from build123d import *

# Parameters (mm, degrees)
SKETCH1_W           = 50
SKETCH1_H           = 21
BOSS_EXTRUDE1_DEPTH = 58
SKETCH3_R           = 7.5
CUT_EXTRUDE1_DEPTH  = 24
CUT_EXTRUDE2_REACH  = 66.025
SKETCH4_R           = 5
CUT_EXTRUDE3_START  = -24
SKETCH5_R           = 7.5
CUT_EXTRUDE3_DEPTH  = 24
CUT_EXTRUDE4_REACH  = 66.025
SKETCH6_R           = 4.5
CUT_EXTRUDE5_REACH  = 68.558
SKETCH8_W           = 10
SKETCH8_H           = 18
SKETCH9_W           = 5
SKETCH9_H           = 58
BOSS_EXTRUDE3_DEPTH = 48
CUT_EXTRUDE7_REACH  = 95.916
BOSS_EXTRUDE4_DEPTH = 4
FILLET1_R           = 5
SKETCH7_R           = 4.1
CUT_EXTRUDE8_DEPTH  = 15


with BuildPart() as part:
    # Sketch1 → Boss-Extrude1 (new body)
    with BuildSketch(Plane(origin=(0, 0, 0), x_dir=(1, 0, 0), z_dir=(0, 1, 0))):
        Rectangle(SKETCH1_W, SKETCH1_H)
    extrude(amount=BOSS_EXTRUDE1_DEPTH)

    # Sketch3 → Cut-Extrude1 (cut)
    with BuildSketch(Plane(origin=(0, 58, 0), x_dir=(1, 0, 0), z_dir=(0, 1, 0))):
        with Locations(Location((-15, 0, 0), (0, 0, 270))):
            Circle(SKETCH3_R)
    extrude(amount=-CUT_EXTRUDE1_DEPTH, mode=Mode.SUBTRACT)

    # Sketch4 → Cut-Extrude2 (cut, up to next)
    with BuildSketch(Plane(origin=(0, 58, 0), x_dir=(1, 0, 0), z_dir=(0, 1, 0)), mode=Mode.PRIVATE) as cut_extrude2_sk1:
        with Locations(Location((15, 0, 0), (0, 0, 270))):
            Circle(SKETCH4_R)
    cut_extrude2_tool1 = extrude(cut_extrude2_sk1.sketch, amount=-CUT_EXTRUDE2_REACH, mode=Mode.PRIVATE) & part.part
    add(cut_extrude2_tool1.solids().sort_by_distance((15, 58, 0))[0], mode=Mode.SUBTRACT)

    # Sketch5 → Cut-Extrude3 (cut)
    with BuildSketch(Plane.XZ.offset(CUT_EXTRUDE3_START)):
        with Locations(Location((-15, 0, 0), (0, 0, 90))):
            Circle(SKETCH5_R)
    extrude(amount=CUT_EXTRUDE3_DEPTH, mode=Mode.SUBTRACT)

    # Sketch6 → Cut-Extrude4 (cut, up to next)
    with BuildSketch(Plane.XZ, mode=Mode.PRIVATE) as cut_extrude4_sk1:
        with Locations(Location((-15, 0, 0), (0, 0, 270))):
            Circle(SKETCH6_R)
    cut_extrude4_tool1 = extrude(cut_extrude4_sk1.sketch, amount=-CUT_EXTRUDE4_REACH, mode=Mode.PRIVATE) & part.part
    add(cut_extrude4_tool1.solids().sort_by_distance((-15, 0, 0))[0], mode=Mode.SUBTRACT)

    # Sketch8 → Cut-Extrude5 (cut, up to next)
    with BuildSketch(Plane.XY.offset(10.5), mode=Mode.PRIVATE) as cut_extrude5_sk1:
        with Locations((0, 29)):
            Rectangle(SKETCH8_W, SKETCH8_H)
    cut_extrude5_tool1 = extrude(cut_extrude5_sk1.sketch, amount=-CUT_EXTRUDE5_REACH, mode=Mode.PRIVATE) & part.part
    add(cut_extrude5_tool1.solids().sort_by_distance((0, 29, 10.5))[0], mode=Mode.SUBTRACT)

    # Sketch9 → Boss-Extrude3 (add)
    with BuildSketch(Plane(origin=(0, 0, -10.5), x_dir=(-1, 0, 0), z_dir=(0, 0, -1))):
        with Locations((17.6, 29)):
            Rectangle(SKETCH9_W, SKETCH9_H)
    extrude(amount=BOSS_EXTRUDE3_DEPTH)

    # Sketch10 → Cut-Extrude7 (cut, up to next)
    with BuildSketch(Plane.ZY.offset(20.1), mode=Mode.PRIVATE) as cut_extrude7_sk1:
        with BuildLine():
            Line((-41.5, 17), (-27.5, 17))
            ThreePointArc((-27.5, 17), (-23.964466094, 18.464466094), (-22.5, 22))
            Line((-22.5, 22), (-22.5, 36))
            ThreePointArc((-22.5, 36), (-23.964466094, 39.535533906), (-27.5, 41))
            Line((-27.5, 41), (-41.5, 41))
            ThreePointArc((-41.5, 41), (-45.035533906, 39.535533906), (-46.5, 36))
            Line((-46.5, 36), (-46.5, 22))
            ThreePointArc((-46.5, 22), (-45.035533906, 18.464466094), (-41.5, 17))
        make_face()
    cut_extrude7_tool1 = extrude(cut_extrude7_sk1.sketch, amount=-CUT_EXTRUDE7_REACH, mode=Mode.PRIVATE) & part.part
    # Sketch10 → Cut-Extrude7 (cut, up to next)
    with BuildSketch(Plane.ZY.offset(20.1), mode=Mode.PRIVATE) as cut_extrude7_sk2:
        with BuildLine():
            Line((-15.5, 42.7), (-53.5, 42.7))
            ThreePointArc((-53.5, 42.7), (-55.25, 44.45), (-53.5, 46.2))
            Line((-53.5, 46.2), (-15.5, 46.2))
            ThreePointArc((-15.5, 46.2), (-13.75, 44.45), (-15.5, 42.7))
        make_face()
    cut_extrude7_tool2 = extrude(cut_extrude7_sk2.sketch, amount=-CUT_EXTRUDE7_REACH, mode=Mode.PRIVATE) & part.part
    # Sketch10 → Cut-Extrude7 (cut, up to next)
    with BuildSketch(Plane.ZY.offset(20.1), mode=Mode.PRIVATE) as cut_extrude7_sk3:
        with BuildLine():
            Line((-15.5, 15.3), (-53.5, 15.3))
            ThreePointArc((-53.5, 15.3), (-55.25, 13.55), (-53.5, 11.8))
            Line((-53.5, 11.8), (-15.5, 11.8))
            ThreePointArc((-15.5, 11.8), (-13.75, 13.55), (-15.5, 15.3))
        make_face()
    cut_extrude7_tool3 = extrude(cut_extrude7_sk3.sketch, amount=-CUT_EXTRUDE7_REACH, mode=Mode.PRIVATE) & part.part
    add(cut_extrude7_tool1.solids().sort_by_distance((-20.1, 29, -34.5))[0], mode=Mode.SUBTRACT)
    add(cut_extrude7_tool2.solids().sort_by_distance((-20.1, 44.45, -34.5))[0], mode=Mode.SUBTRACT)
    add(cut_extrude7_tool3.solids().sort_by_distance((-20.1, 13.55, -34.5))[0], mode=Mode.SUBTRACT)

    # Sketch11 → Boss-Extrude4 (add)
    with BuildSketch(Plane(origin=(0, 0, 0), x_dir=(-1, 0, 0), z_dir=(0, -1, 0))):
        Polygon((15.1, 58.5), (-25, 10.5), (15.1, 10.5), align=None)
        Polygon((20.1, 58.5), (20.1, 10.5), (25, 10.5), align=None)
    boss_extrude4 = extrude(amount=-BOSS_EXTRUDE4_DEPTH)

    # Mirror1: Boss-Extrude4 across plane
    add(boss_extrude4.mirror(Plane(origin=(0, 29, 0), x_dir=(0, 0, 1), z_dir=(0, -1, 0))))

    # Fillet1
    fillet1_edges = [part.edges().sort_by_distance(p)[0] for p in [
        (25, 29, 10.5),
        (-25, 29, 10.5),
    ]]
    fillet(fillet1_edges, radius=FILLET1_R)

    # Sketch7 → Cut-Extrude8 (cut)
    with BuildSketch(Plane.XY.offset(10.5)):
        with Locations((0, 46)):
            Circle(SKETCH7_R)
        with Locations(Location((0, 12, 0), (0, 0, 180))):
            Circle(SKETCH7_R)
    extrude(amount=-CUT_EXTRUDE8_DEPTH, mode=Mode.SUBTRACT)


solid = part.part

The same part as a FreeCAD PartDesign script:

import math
import FreeCAD as App
import Part
import Sketcher
from FreeCAD import Vector
Q = App.Units.Quantity


def edges_at(feature, points):
    """Names of the edges that pass closest to the given points."""
    edges = feature.Shape.Edges
    near = lambda p: min(range(len(edges)), key=lambda i: edges[i].distToShape(Part.Vertex(*p))[0])
    return sorted({f"Edge{near(p) + 1}" for p in points})


def add_polygon(sketch, points):
    """Adds a closed chain of lines whose ends are joined by coincident constraints."""
    first, n = sketch.GeometryCount, len(points)
    for a, b in zip(points, points[1:] + points[:1]):
        sketch.addGeometry(Part.LineSegment(App.Vector(*a, 0), App.Vector(*b, 0)), False)
    for i in range(n):
        sketch.addConstraint(Sketcher.Constraint("Coincident", first + i, 2, first + (i + 1) % n, 1))

doc = App.newDocument("Part")
body = doc.addObject("PartDesign::Body", "Body")

# Sketch on XZ plane
sketch1 = doc.addObject("Sketcher::SketchObject", "Sketch")
body.addObject(sketch1)
sketch1.AttachmentSupport = (doc.XZ_Plane, [""])
sketch1.MapMode = "FlatFace"
add_polygon(sketch1, [(-25, -10), (-25, 10), (25, 10), (25, -10)])  # lines 0-3
sketch1.addConstraint(Sketcher.Constraint("Vertical", 0))
sketch1.addConstraint(Sketcher.Constraint("Horizontal", 1))
sketch1.addConstraint(Sketcher.Constraint("Vertical", 2))
sketch1.addConstraint(Sketcher.Constraint("Horizontal", 3))
sketch1.addConstraint(Sketcher.Constraint("Symmetric", 0, 2, 2, 2, -1, 1))
sketch1.addConstraint(Sketcher.Constraint("DistanceX", 1, 1, 1, 2, Q("50 mm")))
sketch1.addConstraint(Sketcher.Constraint("DistanceY", 0, 1, 0, 2, Q("21 mm")))
pad1 = doc.addObject("PartDesign::Pad", "Pad")
body.addObject(pad1)
pad1.Profile = sketch1
pad1.Length = 58
pad1.Reversed = True

# Sketch on XZ plane
sketch2 = doc.addObject("Sketcher::SketchObject", "Sketch001")
body.addObject(sketch2)
sketch2.AttachmentSupport = (doc.XZ_Plane, [""])
sketch2.MapMode = "FlatFace"
sketch2.AttachmentOffset = App.Placement(Vector(0, 0, -58), App.Rotation())
sketch2.addGeometry(Part.Circle(Vector(-15, 0, 0), Vector(0, 0, 1), 8), False)
sketch2.addConstraint(Sketcher.Constraint("PointOnObject", 0, 3, -1))
sketch2.addConstraint(Sketcher.Constraint("Diameter", 0, Q("15 mm")))
sketch2.addConstraint(Sketcher.Constraint("DistanceX", 0, 3, -1, 1, Q("15 mm")))
pocket1 = doc.addObject("PartDesign::Pocket", "Pocket")
body.addObject(pocket1)
pocket1.Profile = sketch2
pocket1.Length = 24
pocket1.Reversed = True

# Sketch on XZ plane
sketch3 = doc.addObject("Sketcher::SketchObject", "Sketch002")
body.addObject(sketch3)
sketch3.AttachmentSupport = (doc.XZ_Plane, [""])
sketch3.MapMode = "FlatFace"
sketch3.AttachmentOffset = App.Placement(Vector(0, 0, -58), App.Rotation())
sketch3.addGeometry(Part.Circle(Vector(15, 0, 0), Vector(0, 0, 1), 5), False)
sketch3.addConstraint(Sketcher.Constraint("PointOnObject", 0, 3, -1))
sketch3.addConstraint(Sketcher.Constraint("Diameter", 0, Q("10 mm")))
sketch3.addConstraint(Sketcher.Constraint("DistanceX", -1, 1, 0, 3, Q("15 mm")))
pocket2 = doc.addObject("PartDesign::Pocket", "Pocket001")
body.addObject(pocket2)
pocket2.Profile = sketch3
pocket2.Type = "UpToFirst"
pocket2.Reversed = True

# Sketch on XZ plane
sketch4 = doc.addObject("Sketcher::SketchObject", "Sketch003")
body.addObject(sketch4)
sketch4.AttachmentSupport = (doc.XZ_Plane, [""])
sketch4.MapMode = "FlatFace"
sketch4.AttachmentOffset = App.Placement(Vector(0, 0, -24), App.Rotation())
sketch4.addGeometry(Part.Circle(Vector(-15, 0, 0), Vector(0, 0, 1), 8), False)
sketch4.addConstraint(Sketcher.Constraint("PointOnObject", 0, 3, -1))
sketch4.addConstraint(Sketcher.Constraint("Diameter", 0, Q("15 mm")))
sketch4.addConstraint(Sketcher.Constraint("DistanceX", 0, 3, -1, 1, Q("15 mm")))
pocket3 = doc.addObject("PartDesign::Pocket", "Pocket002")
body.addObject(pocket3)
pocket3.Profile = sketch4
pocket3.Length = 24
pocket3.Reversed = True

# Sketch on XZ plane
sketch5 = doc.addObject("Sketcher::SketchObject", "Sketch004")
body.addObject(sketch5)
sketch5.AttachmentSupport = (doc.XZ_Plane, [""])
sketch5.MapMode = "FlatFace"
sketch5.addGeometry(Part.Circle(Vector(-15, 0, 0), Vector(0, 0, 1), 4.5), False)
sketch5.addConstraint(Sketcher.Constraint("PointOnObject", 0, 3, -1))
sketch5.addConstraint(Sketcher.Constraint("Diameter", 0, Q("9 mm")))
sketch5.addConstraint(Sketcher.Constraint("DistanceX", 0, 3, -1, 1, Q("15 mm")))
pocket4 = doc.addObject("PartDesign::Pocket", "Pocket003")
body.addObject(pocket4)
pocket4.Profile = sketch5
pocket4.Length = 34

# Sketch on XY plane
sketch6 = doc.addObject("Sketcher::SketchObject", "Sketch005")
body.addObject(sketch6)
sketch6.AttachmentSupport = (doc.XY_Plane, [""])
sketch6.MapMode = "FlatFace"
sketch6.AttachmentOffset = App.Placement(Vector(0, 0, 10.5), App.Rotation())
add_polygon(sketch6, [(-5, 38), (-5, 20), (5, 20), (5, 38)])  # lines 0-3
sketch6.addConstraint(Sketcher.Constraint("Vertical", 0))
sketch6.addConstraint(Sketcher.Constraint("Horizontal", 1))
sketch6.addConstraint(Sketcher.Constraint("Vertical", 2))
sketch6.addConstraint(Sketcher.Constraint("Horizontal", 3))
sketch6.addConstraint(Sketcher.Constraint("DistanceX", 1, 1, 1, 2, Q("10 mm")))
sketch6.addConstraint(Sketcher.Constraint("DistanceY", 0, 2, 0, 1, Q("18 mm")))
sketch6.addConstraint(Sketcher.Constraint("DistanceX", 0, 2, -1, 1, Q("5 mm")))
sketch6.addConstraint(Sketcher.Constraint("DistanceY", -1, 1, 0, 2, Q("20 mm")))
pocket5 = doc.addObject("PartDesign::Pocket", "Pocket004")
body.addObject(pocket5)
pocket5.Profile = sketch6
pocket5.Type = "UpToFirst"

# Sketch on XY plane
sketch7 = doc.addObject("Sketcher::SketchObject", "Sketch006")
body.addObject(sketch7)
sketch7.AttachmentSupport = (doc.XY_Plane, [""])
sketch7.MapMode = "FlatFace"
sketch7.AttachmentOffset = App.Placement(Vector(0, 0, -10.5), App.Rotation())
add_polygon(sketch7, [(-15, 58), (-15, 0), (-20, 0), (-20, 58)])  # lines 0-3
sketch7.addConstraint(Sketcher.Constraint("Vertical", 0))
sketch7.addConstraint(Sketcher.Constraint("Horizontal", 1))
sketch7.addConstraint(Sketcher.Constraint("Vertical", 2))
sketch7.addConstraint(Sketcher.Constraint("Horizontal", 3))
sketch7.addConstraint(Sketcher.Constraint("PointOnObject", 0, 2, -1))
sketch7.addConstraint(Sketcher.Constraint("DistanceX", 1, 2, 1, 1, Q("5 mm")))
sketch7.addConstraint(Sketcher.Constraint("DistanceY", 0, 2, 0, 1, Q("58 mm")))
sketch7.addConstraint(Sketcher.Constraint("DistanceX", 0, 2, -1, 1, Q("15.1 mm")))
pad2 = doc.addObject("PartDesign::Pad", "Pad001")
body.addObject(pad2)
pad2.Profile = sketch7
pad2.Length = 48
pad2.Reversed = True

# Sketch on YZ plane
sketch8 = doc.addObject("Sketcher::SketchObject", "Sketch007")
body.addObject(sketch8)
sketch8.AttachmentSupport = (doc.YZ_Plane, [""])
sketch8.MapMode = "FlatFace"
sketch8.AttachmentOffset = App.Placement(Vector(0, 0, -20.1), App.Rotation())
sketch8.addGeometry(Part.LineSegment(Vector(17, -42, 0), Vector(17, -28, 0)), False)
sketch8.addGeometry(Part.ArcOfCircle(Part.Circle(Vector(22, -28, 0), Vector(0, 0, 1), 5), math.radians(90), math.radians(180)), False)
sketch8.addGeometry(Part.LineSegment(Vector(22, -22, 0), Vector(36, -22, 0)), False)
sketch8.addGeometry(Part.ArcOfCircle(Part.Circle(Vector(36, -28, 0), Vector(0, 0, 1), 5), math.radians(0), math.radians(90)), False)
sketch8.addGeometry(Part.LineSegment(Vector(41, -28, 0), Vector(41, -42, 0)), False)
sketch8.addGeometry(Part.ArcOfCircle(Part.Circle(Vector(36, -42, 0), Vector(0, 0, 1), 5), math.radians(-90), math.radians(0)), False)
sketch8.addGeometry(Part.LineSegment(Vector(36, -46, 0), Vector(22, -46, 0)), False)
sketch8.addGeometry(Part.ArcOfCircle(Part.Circle(Vector(22, -42, 0), Vector(0, 0, 1), 5), math.radians(180), math.radians(270)), False)
sketch8.addConstraint(Sketcher.Constraint("Tangent", 0, 2, 1, 2))
sketch8.addConstraint(Sketcher.Constraint("Tangent", 1, 1, 2, 1))
sketch8.addConstraint(Sketcher.Constraint("Tangent", 2, 2, 3, 2))
sketch8.addConstraint(Sketcher.Constraint("Tangent", 3, 1, 4, 1))
sketch8.addConstraint(Sketcher.Constraint("Tangent", 4, 2, 5, 2))
sketch8.addConstraint(Sketcher.Constraint("Tangent", 5, 1, 6, 1))
sketch8.addConstraint(Sketcher.Constraint("Tangent", 6, 2, 7, 2))
sketch8.addConstraint(Sketcher.Constraint("Tangent", 7, 1, 0, 1))
sketch8.addConstraint(Sketcher.Constraint("Vertical", 0))
sketch8.addConstraint(Sketcher.Constraint("Horizontal", 2))
sketch8.addConstraint(Sketcher.Constraint("Vertical", 4))
sketch8.addConstraint(Sketcher.Constraint("Horizontal", 6))
sketch8.addConstraint(Sketcher.Constraint("Equal", 1, 3))
sketch8.addConstraint(Sketcher.Constraint("Equal", 3, 5))
sketch8.addConstraint(Sketcher.Constraint("Equal", 5, 7))
sketch8.addConstraint(Sketcher.Constraint("Equal", 6, 0))
sketch8.addConstraint(Sketcher.Constraint("Radius", 1, Q("5 mm")))
sketch8.addConstraint(Sketcher.Constraint("DistanceX", 2, 1, 2, 2, Q("14 mm")))
sketch8.addConstraint(Sketcher.Constraint("DistanceX", -1, 1, 1, 3, Q("22 mm")))
sketch8.addConstraint(Sketcher.Constraint("DistanceY", 1, 3, -1, 1, Q("27.5 mm")))
pocket6 = doc.addObject("PartDesign::Pocket", "Pocket005")
body.addObject(pocket6)
pocket6.Profile = sketch8
pocket6.Type = "UpToFirst"
pocket6.Reversed = True

# Sketch on YZ plane
sketch9 = doc.addObject("Sketcher::SketchObject", "Sketch008")
body.addObject(sketch9)
sketch9.AttachmentSupport = (doc.YZ_Plane, [""])
sketch9.MapMode = "FlatFace"
sketch9.AttachmentOffset = App.Placement(Vector(0, 0, -20.1), App.Rotation())
sketch9.addGeometry(Part.LineSegment(Vector(42.7, -53.5, 0), Vector(42.7, -15.5, 0)), False)
sketch9.addGeometry(Part.ArcOfCircle(Part.Circle(Vector(44.5, -15.5, 0), Vector(0, 0, 1), 1.8), math.radians(0), math.radians(180)), False)
sketch9.addGeometry(Part.LineSegment(Vector(46.2, -15.5, 0), Vector(46.2, -53.5, 0)), False)
sketch9.addGeometry(Part.ArcOfCircle(Part.Circle(Vector(44.5, -53.5, 0), Vector(0, 0, 1), 1.8), math.radians(180), math.radians(360)), False)
sketch9.addConstraint(Sketcher.Constraint("Tangent", 0, 2, 1, 2))
sketch9.addConstraint(Sketcher.Constraint("Tangent", 1, 1, 2, 1))
sketch9.addConstraint(Sketcher.Constraint("Tangent", 2, 2, 3, 2))
sketch9.addConstraint(Sketcher.Constraint("Tangent", 3, 1, 0, 1))
sketch9.addConstraint(Sketcher.Constraint("Vertical", 0))
sketch9.addConstraint(Sketcher.Constraint("Vertical", 2))
sketch9.addConstraint(Sketcher.Constraint("DistanceY", 0, 1, 0, 2, Q("38 mm")))
sketch9.addConstraint(Sketcher.Constraint("Radius", 1, Q("1.75 mm")))
sketch9.addConstraint(Sketcher.Constraint("DistanceY", 1, 3, -1, 1, Q("15.5 mm")))
sketch9.addConstraint(Sketcher.Constraint("DistanceX", -1, 1, 0, 2, Q("42.7 mm")))
pocket7 = doc.addObject("PartDesign::Pocket", "Pocket006")
body.addObject(pocket7)
pocket7.Profile = sketch9
pocket7.Type = "UpToFirst"
pocket7.Reversed = True

# Sketch on YZ plane
sketch10 = doc.addObject("Sketcher::SketchObject", "Sketch009")
body.addObject(sketch10)
sketch10.AttachmentSupport = (doc.YZ_Plane, [""])
sketch10.MapMode = "FlatFace"
sketch10.AttachmentOffset = App.Placement(Vector(0, 0, -20.1), App.Rotation())
sketch10.addGeometry(Part.LineSegment(Vector(15.3, -15.5, 0), Vector(15.3, -53.5, 0)), False)
sketch10.addGeometry(Part.ArcOfCircle(Part.Circle(Vector(13.6, -53.5, 0), Vector(0, 0, 1), 1.8), math.radians(180), math.radians(360)), False)
sketch10.addGeometry(Part.LineSegment(Vector(11.8, -53.5, 0), Vector(11.8, -15.5, 0)), False)
sketch10.addGeometry(Part.ArcOfCircle(Part.Circle(Vector(13.6, -15.5, 0), Vector(0, 0, 1), 1.8), math.radians(0), math.radians(180)), False)
sketch10.addConstraint(Sketcher.Constraint("Tangent", 0, 2, 1, 2))
sketch10.addConstraint(Sketcher.Constraint("Tangent", 1, 1, 2, 1))
sketch10.addConstraint(Sketcher.Constraint("Tangent", 2, 2, 3, 2))
sketch10.addConstraint(Sketcher.Constraint("Tangent", 3, 1, 0, 1))
sketch10.addConstraint(Sketcher.Constraint("Vertical", 0))
sketch10.addConstraint(Sketcher.Constraint("Vertical", 2))
sketch10.addConstraint(Sketcher.Constraint("DistanceY", 0, 2, 0, 1, Q("38 mm")))
sketch10.addConstraint(Sketcher.Constraint("Radius", 1, Q("1.75 mm")))
sketch10.addConstraint(Sketcher.Constraint("DistanceY", 1, 3, -1, 1, Q("53.5 mm")))
sketch10.addConstraint(Sketcher.Constraint("DistanceX", -1, 1, 0, 2, Q("15.3 mm")))
pocket8 = doc.addObject("PartDesign::Pocket", "Pocket007")
body.addObject(pocket8)
pocket8.Profile = sketch10
pocket8.Type = "UpToFirst"
pocket8.Reversed = True

# Sketch on XZ plane
sketch11 = doc.addObject("Sketcher::SketchObject", "Sketch010")
body.addObject(sketch11)
sketch11.AttachmentSupport = (doc.XZ_Plane, [""])
sketch11.MapMode = "FlatFace"
add_polygon(sketch11, [(-15.1, -58.5), (25, -10.5), (-15.1, -10.5)])  # lines 0-2
add_polygon(sketch11, [(-20.1, -58.5), (-20.1, -10.5), (-25, -10.5)])  # lines 3-5
sketch11.addConstraint(Sketcher.Constraint("Horizontal", 1))
sketch11.addConstraint(Sketcher.Constraint("Vertical", 2))
sketch11.addConstraint(Sketcher.Constraint("Vertical", 3))
sketch11.addConstraint(Sketcher.Constraint("Horizontal", 4))
sketch11.addConstraint(Sketcher.Constraint("Symmetric", 0, 2, 4, 2, -2))
sketch11.addConstraint(Sketcher.Constraint("Horizontal", 2, 2, 5, 2))
sketch11.addConstraint(Sketcher.Constraint("DistanceY", 2, 2, 2, 1, Q("48 mm")))
sketch11.addConstraint(Sketcher.Constraint("DistanceX", 1, 2, 1, 1, Q("40.1 mm")))
sketch11.addConstraint(Sketcher.Constraint("DistanceX", 4, 2, 4, 1, Q("4.9 mm")))
sketch11.addConstraint(Sketcher.Constraint("DistanceX", -1, 1, 0, 2, Q("25 mm")))
sketch11.addConstraint(Sketcher.Constraint("DistanceY", 0, 2, -1, 1, Q("10.5 mm")))
pad3 = doc.addObject("PartDesign::Pad", "Pad002")
body.addObject(pad3)
pad3.Profile = sketch11
pad3.Length = 4
pad3.Reversed = True
doc.recompute()

datumplane = doc.addObject("PartDesign::Plane", "DatumPlane")
body.addObject(datumplane)
datumplane.AttachmentSupport = (doc.XZ_Plane, [""])
datumplane.MapMode = "FlatFace"
datumplane.AttachmentOffset = App.Placement(Vector(0, 0, -29), App.Rotation())
mirrored = doc.addObject("PartDesign::Mirrored", "Mirrored")
body.addObject(mirrored)
mirrored.Originals = [pad3]
mirrored.MirrorPlane = (datumplane, [""])
body.Tip = mirrored
doc.recompute()

fillet = doc.addObject("PartDesign::Fillet", "Fillet")
body.addObject(fillet)
fillet.Base = (mirrored, edges_at(mirrored, [(25, 29, 10.5), (-25, 29, 10.5)]))
fillet.Radius = 5

# Sketch on XY plane
sketch12 = doc.addObject("Sketcher::SketchObject", "Sketch011")
body.addObject(sketch12)
sketch12.AttachmentSupport = (doc.XY_Plane, [""])
sketch12.MapMode = "FlatFace"
sketch12.AttachmentOffset = App.Placement(Vector(0, 0, 10.5), App.Rotation())
sketch12.addGeometry(Part.Circle(Vector(0, 46, 0), Vector(0, 0, 1), 4.1), False)
sketch12.addGeometry(Part.Circle(Vector(0, 12, 0), Vector(0, 0, 1), 4.1), False)
sketch12.addConstraint(Sketcher.Constraint("Equal", 0, 1))
sketch12.addConstraint(Sketcher.Constraint("PointOnObject", 0, 3, -2))
sketch12.addConstraint(Sketcher.Constraint("PointOnObject", 1, 3, -2))
sketch12.addConstraint(Sketcher.Constraint("Diameter", 0, Q("8.2 mm")))
sketch12.addConstraint(Sketcher.Constraint("DistanceY", -1, 1, 0, 3, Q("46 mm")))
sketch12.addConstraint(Sketcher.Constraint("DistanceY", -1, 1, 1, 3, Q("12 mm")))
pocket9 = doc.addObject("PartDesign::Pocket", "Pocket008")
body.addObject(pocket9)
pocket9.Profile = sketch12
pocket9.Length = 15

doc.recompute()
